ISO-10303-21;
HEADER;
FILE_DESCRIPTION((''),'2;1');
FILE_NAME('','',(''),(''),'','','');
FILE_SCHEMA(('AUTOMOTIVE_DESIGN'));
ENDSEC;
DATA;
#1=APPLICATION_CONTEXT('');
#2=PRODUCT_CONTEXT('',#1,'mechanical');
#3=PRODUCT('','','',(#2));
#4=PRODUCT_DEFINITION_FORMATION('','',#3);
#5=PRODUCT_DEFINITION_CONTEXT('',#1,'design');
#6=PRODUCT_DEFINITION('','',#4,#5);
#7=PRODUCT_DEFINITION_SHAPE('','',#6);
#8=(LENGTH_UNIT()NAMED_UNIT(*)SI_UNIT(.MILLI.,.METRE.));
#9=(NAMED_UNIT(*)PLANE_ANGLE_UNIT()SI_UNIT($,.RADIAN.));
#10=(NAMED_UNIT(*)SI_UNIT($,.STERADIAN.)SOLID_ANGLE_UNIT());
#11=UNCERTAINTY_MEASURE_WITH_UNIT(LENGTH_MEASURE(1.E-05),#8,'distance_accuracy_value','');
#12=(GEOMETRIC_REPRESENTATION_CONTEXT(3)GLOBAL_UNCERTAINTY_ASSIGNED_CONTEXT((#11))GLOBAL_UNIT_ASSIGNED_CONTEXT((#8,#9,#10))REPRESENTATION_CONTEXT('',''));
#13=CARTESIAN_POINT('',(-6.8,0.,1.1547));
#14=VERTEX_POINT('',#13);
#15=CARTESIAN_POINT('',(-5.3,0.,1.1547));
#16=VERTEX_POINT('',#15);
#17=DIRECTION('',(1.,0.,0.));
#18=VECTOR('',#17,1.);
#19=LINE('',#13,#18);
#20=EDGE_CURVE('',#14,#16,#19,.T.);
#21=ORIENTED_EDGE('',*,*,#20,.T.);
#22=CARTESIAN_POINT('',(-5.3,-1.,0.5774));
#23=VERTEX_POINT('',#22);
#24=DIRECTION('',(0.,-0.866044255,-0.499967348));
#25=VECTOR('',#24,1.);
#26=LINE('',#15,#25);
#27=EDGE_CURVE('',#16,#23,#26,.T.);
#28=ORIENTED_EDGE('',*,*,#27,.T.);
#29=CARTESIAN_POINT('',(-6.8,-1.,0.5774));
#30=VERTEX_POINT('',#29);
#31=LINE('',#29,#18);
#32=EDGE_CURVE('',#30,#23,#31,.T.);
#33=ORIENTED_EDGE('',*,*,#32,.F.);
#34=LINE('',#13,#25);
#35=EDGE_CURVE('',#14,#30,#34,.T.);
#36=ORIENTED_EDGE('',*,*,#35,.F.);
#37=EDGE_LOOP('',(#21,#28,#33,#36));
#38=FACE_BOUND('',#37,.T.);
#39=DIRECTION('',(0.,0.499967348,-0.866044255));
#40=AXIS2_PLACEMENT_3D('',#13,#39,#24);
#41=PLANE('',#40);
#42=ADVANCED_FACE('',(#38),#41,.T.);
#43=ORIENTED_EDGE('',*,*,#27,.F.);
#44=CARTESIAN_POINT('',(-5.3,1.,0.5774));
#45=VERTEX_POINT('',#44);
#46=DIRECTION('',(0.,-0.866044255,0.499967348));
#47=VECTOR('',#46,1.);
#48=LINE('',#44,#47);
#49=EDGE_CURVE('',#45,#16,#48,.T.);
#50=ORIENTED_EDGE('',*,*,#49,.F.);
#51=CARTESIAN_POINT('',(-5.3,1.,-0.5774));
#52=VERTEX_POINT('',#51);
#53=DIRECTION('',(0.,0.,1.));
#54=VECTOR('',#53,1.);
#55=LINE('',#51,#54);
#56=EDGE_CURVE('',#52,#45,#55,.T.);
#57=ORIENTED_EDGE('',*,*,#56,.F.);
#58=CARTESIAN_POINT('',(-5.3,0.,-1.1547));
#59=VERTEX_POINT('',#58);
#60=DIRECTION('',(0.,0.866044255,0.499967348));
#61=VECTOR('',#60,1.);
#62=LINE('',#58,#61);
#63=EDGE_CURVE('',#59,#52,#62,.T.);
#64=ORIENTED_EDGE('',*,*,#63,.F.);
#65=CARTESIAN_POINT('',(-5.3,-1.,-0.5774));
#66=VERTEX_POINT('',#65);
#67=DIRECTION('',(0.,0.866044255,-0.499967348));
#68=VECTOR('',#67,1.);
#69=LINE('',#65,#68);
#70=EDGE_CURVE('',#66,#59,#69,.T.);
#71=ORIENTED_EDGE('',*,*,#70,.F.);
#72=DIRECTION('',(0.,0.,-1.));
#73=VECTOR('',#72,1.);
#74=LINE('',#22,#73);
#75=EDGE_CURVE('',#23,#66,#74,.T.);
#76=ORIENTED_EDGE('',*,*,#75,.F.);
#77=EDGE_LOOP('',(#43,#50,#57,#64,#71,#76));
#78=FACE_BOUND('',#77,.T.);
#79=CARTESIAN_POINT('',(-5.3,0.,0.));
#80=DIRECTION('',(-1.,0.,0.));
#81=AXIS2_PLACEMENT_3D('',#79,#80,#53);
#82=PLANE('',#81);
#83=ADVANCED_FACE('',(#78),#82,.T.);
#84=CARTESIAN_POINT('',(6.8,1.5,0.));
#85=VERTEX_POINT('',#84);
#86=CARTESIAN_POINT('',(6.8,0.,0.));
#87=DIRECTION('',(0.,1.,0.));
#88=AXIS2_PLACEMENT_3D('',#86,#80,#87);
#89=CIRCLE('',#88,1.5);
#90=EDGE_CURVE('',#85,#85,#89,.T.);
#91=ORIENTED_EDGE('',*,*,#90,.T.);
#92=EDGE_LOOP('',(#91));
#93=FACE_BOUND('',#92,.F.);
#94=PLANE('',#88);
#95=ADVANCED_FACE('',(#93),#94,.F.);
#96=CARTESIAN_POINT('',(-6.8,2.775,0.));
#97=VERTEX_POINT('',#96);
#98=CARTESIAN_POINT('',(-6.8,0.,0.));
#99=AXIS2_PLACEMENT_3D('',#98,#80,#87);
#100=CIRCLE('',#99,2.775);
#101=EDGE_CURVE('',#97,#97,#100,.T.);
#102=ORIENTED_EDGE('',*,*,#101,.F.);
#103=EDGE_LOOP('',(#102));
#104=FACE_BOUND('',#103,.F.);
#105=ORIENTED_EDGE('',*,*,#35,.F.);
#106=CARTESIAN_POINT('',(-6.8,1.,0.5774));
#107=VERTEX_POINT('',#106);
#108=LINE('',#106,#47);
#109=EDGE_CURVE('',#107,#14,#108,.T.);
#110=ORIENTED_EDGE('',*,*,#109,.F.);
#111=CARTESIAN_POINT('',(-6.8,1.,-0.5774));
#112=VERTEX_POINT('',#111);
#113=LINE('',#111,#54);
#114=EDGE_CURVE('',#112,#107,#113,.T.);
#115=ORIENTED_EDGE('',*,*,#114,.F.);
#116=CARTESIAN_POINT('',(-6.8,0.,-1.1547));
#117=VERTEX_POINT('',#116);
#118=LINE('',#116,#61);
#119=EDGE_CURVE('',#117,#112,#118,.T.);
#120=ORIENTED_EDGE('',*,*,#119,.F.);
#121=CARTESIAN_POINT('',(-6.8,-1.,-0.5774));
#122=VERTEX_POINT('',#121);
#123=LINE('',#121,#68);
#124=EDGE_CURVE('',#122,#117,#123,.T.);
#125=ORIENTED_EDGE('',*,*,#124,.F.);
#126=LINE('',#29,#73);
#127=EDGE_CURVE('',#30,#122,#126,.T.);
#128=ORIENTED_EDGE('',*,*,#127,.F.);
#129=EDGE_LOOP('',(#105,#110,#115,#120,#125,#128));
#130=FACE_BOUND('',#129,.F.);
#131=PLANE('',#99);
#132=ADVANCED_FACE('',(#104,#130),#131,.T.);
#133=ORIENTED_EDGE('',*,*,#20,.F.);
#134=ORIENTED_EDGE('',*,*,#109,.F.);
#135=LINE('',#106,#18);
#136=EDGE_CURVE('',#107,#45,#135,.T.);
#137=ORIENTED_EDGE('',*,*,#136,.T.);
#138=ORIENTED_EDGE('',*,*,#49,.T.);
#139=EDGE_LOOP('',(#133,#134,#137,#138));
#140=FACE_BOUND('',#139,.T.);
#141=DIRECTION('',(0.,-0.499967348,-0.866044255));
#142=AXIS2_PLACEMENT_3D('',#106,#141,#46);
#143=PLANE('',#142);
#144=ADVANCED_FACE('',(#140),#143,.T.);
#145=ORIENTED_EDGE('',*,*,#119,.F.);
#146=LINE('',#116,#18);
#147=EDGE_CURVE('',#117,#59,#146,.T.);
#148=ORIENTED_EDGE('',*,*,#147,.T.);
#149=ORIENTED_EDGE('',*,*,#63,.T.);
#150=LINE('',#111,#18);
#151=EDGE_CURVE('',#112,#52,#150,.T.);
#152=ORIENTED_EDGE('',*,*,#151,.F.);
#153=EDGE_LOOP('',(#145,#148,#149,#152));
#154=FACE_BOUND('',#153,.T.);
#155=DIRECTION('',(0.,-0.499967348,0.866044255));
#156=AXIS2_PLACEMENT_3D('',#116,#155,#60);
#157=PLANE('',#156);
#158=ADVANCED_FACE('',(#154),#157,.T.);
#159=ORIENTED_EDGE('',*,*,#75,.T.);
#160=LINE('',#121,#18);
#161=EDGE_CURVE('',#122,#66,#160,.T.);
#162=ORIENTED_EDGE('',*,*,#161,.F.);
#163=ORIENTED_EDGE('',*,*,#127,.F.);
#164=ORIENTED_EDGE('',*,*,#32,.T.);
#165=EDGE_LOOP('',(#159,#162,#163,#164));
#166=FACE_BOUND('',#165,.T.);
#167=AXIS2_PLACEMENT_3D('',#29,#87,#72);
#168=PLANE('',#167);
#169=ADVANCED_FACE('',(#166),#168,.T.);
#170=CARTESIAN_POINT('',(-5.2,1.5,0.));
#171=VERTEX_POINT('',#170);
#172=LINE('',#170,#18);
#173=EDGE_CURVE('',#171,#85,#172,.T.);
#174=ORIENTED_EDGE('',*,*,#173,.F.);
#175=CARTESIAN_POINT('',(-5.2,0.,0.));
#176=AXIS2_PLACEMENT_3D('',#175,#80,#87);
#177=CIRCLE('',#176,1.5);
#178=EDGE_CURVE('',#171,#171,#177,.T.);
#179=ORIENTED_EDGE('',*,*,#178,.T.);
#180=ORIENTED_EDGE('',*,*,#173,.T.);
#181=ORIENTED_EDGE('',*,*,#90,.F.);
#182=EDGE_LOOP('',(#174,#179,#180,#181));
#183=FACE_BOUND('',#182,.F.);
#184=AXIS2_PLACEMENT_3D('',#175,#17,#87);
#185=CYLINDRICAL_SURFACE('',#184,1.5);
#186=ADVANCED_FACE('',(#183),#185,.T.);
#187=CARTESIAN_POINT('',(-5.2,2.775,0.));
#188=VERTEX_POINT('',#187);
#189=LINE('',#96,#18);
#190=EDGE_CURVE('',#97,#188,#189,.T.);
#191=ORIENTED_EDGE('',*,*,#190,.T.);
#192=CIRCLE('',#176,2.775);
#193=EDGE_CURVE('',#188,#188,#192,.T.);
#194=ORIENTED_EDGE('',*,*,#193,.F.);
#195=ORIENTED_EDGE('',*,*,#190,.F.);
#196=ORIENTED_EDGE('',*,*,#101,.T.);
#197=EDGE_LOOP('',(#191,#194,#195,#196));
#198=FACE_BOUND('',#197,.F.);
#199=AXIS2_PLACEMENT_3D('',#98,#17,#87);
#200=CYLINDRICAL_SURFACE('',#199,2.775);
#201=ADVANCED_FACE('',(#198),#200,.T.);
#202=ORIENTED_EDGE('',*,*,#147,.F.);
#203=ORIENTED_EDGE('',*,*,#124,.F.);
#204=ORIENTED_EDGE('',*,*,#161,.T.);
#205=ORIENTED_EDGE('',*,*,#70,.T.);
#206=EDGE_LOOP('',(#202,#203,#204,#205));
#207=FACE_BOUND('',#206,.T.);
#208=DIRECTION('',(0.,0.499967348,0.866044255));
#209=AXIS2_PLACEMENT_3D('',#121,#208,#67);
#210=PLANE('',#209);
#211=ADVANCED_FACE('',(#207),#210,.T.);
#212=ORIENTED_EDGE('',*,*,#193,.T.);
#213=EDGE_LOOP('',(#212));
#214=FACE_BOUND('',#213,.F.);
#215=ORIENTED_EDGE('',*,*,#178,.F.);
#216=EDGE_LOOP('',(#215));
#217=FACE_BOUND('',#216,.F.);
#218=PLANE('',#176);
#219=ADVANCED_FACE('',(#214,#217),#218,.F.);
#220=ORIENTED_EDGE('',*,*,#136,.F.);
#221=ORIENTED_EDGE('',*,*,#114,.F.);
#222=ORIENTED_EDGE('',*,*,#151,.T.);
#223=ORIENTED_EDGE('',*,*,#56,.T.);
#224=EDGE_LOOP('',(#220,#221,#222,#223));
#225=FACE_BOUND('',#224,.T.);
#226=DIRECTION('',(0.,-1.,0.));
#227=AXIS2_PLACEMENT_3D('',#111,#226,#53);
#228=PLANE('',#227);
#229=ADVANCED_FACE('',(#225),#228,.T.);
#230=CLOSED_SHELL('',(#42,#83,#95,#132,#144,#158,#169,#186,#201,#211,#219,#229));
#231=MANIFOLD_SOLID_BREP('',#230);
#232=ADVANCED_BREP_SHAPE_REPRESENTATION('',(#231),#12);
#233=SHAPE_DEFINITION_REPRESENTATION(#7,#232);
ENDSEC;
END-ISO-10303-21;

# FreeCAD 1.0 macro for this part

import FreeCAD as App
import Part
import Sketcher
from FreeCAD import Vector

doc = App.newDocument("Part")
body = doc.addObject("PartDesign::Body", "Body")

# Sketch on XY plane
sketch1 = body.newObject("Sketcher::SketchObject", "Sketch")
sketch1.AttachmentSupport = (doc.getObject("XY_Plane"), [""])
sketch1.MapMode = "FlatFace"
sketch1.addGeometry(Part.LineSegment(Vector(-6.8, 0, 0), Vector(6.8, 0, 0)), False)
sketch1.addGeometry(Part.LineSegment(Vector(6.8, 0, 0), Vector(6.8, 1.5, 0)), False)
sketch1.addGeometry(Part.LineSegment(Vector(6.8, 1.5, 0), Vector(-5.2, 1.5, 0)), False)
sketch1.addGeometry(Part.LineSegment(Vector(-5.2, 1.5, 0), Vector(-5.2, 2.775, 0)), False)
sketch1.addGeometry(Part.LineSegment(Vector(-5.2, 2.775, 0), Vector(-6.8, 2.775, 0)), False)
sketch1.addGeometry(Part.LineSegment(Vector(-6.8, 2.775, 0), Vector(-6.8, 0, 0)), False)
sketch1.addConstraint(Sketcher.Constraint("Coincident", 0, 2, 1, 1))
sketch1.addConstraint(Sketcher.Constraint("Coincident", 1, 2, 2, 1))
sketch1.addConstraint(Sketcher.Constraint("Coincident", 2, 2, 3, 1))
sketch1.addConstraint(Sketcher.Constraint("Coincident", 3, 2, 4, 1))
sketch1.addConstraint(Sketcher.Constraint("Coincident", 4, 2, 5, 1))
sketch1.addConstraint(Sketcher.Constraint("Coincident", 5, 2, 0, 1))
sketch1.addConstraint(Sketcher.Constraint("Horizontal", 0))
sketch1.addConstraint(Sketcher.Constraint("Vertical", 1))
sketch1.addConstraint(Sketcher.Constraint("Horizontal", 2))
sketch1.addConstraint(Sketcher.Constraint("Vertical", 3))
sketch1.addConstraint(Sketcher.Constraint("Horizontal", 4))
sketch1.addConstraint(Sketcher.Constraint("Vertical", 5))
sketch1.addConstraint(Sketcher.Constraint("Symmetric", 0, 2, 5, 2, -1, 1))
sketch1.addConstraint(Sketcher.Constraint("DistanceX", 2, 2, 2, 1, 12.0))
sketch1.addConstraint(Sketcher.Constraint("DistanceX", 4, 2, 4, 1, 1.6))
sketch1.addConstraint(Sketcher.Constraint("DistanceY", 1, 1, 1, 2, 1.5))
sketch1.addConstraint(Sketcher.Constraint("DistanceY", 5, 2, 5, 1, 2.775))
revolution = body.newObject("PartDesign::Revolution", "Revolution")
revolution.Profile = sketch1
revolution.ReferenceAxis = (sketch1, ["H_Axis"])
revolution.Angle = 360

# Sketch on YZ plane
sketch2 = body.newObject("Sketcher::SketchObject", "Sketch001")
sketch2.AttachmentSupport = (doc.getObject("YZ_Plane"), [""])
sketch2.MapMode = "FlatFace"
sketch2.AttachmentOffset = App.Placement(Vector(0, 0, -6.8), App.Rotation())
sketch2.addGeometry(Part.LineSegment(Vector(1, -0.5774, 0), Vector(0, -1.1547, 0)), False)
sketch2.addGeometry(Part.LineSegment(Vector(0, -1.1547, 0), Vector(-1, -0.5774, 0)), False)
sketch2.addGeometry(Part.LineSegment(Vector(-1, -0.5774, 0), Vector(-1, 0.5774, 0)), False)
sketch2.addGeometry(Part.LineSegment(Vector(-1, 0.5774, 0), Vector(0, 1.1547, 0)), False)
sketch2.addGeometry(Part.LineSegment(Vector(0, 1.1547, 0), Vector(1, 0.5774, 0)), False)
sketch2.addGeometry(Part.LineSegment(Vector(1, 0.5774, 0), Vector(1, -0.5774, 0)), False)
sketch2.addConstraint(Sketcher.Constraint("Coincident", 0, 2, 1, 1))
sketch2.addConstraint(Sketcher.Constraint("Coincident", 1, 2, 2, 1))
sketch2.addConstraint(Sketcher.Constraint("Coincident", 2, 2, 3, 1))
sketch2.addConstraint(Sketcher.Constraint("Coincident", 3, 2, 4, 1))
sketch2.addConstraint(Sketcher.Constraint("Coincident", 4, 2, 5, 1))
sketch2.addConstraint(Sketcher.Constraint("Coincident", 5, 2, 0, 1))
sketch2.addConstraint(Sketcher.Constraint("Vertical", 2))
sketch2.addConstraint(Sketcher.Constraint("Vertical", 5))
sketch2.addConstraint(Sketcher.Constraint("Symmetric", 0, 2, 3, 2, -1, 1))
sketch2.addConstraint(Sketcher.Constraint("Symmetric", 1, 2, 4, 2, -1, 1))
sketch2.addConstraint(Sketcher.Constraint("PointOnObject", 0, 2, -2))
sketch2.addConstraint(Sketcher.Constraint("Parallel", 0, 3))
sketch2.addConstraint(Sketcher.Constraint("Horizontal", 2, 2, 4, 2))
sketch2.addConstraint(Sketcher.Constraint("DistanceX", 2, 2, 4, 2, 2.0))
sketch2.addConstraint(Sketcher.Constraint("DistanceY", 2, 1, 2, 2, 1.1548))
sketch2.addConstraint(Sketcher.Constraint("DistanceY", 0, 2, 2, 2, 1.732))
pocket1 = body.newObject("PartDesign::Pocket", "Pocket")
pocket1.Profile = sketch2
pocket1.Length = 1.5
pocket1.Reversed = True

doc.recompute()
